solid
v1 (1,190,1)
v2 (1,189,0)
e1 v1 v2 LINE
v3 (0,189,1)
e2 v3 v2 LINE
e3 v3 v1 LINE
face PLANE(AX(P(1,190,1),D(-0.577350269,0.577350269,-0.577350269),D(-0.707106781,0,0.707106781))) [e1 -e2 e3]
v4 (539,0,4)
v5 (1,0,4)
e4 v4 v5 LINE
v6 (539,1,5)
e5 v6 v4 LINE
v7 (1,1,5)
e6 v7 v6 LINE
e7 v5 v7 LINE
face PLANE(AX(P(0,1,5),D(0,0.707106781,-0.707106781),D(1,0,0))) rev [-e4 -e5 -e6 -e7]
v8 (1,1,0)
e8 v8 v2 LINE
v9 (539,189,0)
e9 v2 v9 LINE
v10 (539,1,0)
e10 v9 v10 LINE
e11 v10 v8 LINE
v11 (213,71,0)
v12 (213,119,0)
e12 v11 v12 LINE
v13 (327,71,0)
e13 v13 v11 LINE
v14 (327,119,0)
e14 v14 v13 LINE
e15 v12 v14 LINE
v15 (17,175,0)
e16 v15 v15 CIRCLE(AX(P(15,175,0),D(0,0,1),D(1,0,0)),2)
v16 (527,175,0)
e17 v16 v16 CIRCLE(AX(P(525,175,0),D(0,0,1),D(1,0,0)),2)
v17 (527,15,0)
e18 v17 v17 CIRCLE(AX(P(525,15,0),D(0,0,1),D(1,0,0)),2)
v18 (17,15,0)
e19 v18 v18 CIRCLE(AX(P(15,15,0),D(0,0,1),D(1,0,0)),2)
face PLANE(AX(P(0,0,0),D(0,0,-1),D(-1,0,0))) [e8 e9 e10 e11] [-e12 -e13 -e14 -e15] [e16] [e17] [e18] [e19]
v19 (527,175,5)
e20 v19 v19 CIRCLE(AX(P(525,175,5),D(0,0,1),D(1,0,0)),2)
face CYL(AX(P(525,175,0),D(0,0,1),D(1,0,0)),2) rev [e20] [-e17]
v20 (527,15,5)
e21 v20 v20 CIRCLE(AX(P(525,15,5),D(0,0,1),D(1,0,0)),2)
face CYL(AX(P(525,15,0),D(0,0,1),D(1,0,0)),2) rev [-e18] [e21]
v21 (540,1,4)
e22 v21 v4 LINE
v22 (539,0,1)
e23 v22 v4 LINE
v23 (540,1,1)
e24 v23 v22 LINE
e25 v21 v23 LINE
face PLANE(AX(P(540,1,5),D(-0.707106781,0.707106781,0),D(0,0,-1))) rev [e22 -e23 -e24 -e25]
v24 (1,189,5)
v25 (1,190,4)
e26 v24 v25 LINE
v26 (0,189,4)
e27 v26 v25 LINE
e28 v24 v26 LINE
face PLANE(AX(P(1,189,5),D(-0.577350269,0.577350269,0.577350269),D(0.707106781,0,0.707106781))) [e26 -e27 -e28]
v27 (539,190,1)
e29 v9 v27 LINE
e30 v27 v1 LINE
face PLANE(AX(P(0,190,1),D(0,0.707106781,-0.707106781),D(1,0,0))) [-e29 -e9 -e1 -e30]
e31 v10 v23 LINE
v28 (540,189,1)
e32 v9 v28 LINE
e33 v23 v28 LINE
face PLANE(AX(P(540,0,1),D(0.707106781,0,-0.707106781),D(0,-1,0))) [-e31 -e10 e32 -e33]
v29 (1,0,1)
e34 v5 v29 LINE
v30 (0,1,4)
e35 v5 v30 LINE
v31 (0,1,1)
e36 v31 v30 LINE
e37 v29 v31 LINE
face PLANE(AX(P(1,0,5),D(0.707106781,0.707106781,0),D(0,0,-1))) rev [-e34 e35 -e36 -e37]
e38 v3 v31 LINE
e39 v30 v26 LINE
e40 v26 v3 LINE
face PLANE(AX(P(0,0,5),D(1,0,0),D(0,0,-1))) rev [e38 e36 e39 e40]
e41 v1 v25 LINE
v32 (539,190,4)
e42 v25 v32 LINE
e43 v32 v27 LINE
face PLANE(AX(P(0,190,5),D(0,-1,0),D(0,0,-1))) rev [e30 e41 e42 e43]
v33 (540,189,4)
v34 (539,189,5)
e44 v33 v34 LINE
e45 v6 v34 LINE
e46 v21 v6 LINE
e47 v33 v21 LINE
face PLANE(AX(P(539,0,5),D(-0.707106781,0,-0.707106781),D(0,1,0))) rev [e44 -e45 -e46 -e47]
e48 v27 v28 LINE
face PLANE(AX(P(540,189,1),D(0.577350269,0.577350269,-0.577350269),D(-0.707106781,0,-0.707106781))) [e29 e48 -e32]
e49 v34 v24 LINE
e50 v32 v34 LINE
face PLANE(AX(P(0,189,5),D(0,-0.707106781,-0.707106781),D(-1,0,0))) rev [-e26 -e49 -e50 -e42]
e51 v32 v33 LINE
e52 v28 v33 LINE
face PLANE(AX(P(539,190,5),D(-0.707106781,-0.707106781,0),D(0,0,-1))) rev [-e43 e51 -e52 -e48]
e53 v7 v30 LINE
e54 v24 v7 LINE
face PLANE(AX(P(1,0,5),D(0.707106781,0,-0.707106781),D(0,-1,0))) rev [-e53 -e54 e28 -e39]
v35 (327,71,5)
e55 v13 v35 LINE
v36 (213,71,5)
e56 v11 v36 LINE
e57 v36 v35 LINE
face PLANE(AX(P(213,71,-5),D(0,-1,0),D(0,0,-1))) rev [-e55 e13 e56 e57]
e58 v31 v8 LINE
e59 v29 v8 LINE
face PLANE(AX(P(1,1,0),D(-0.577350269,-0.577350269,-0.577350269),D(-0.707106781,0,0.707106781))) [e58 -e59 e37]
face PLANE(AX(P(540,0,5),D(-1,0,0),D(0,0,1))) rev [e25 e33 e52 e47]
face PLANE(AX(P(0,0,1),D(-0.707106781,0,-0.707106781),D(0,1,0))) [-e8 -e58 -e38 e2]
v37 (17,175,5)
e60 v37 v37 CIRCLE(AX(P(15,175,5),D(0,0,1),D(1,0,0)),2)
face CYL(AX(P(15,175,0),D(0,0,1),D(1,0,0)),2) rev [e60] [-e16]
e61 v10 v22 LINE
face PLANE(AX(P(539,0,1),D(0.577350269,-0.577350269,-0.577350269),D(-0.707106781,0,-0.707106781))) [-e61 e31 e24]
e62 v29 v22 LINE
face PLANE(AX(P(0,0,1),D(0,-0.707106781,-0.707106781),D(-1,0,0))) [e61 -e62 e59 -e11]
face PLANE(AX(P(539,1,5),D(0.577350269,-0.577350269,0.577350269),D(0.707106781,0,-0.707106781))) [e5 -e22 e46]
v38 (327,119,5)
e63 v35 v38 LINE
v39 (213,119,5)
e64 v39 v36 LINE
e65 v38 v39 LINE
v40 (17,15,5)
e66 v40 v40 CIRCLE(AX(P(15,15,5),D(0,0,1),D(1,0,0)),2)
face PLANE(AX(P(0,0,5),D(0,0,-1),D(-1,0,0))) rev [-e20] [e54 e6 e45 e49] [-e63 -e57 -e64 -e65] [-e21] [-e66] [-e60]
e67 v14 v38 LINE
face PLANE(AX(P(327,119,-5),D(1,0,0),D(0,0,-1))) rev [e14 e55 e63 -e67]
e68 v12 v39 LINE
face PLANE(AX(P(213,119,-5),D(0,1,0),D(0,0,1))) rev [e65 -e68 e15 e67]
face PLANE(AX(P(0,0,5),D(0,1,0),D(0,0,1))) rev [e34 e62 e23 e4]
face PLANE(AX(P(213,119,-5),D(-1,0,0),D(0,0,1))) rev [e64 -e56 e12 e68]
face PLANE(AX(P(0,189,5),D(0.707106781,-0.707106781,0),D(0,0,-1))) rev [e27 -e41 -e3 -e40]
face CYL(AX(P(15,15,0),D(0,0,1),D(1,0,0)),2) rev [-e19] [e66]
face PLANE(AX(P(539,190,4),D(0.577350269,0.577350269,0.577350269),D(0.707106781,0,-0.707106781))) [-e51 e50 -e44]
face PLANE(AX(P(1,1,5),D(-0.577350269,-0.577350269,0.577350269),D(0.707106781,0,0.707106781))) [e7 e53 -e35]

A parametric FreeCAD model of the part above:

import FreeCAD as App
import Part
import Sketcher


def add_polygon(sketch, points):
    """Adds a closed chain of lines whose ends are joined by coincident constraints."""
    first, n = sketch.GeometryCount, len(points)
    for a, b in zip(points, points[1:] + points[:1]):
        sketch.addGeometry(Part.LineSegment(App.Vector(*a, 0), App.Vector(*b, 0)), False)
    for i in range(n):
        sketch.addConstraint(Sketcher.Constraint("Coincident", first + i, 2, first + (i + 1) % n, 1))

doc = App.newDocument("Part")
body = doc.addObject("PartDesign::Body", "Body")

# Sketch on XY plane
sketch1 = body.newObject("Sketcher::SketchObject", "Sketch")
sketch1.AttachmentSupport = (doc.getObject("XY_Plane"), [""])
sketch1.MapMode = "FlatFace"
add_polygon(sketch1, [(0, 190), (0, 0), (540, 0), (540, 190)])  # lines 0-3
sketch1.addConstraint(Sketcher.Constraint("Vertical", 0))
sketch1.addConstraint(Sketcher.Constraint("Horizontal", 1))
sketch1.addConstraint(Sketcher.Constraint("Vertical", 2))
sketch1.addConstraint(Sketcher.Constraint("Horizontal", 3))
sketch1.addConstraint(Sketcher.Constraint("Coincident", 0, 2, -1, 1))
sketch1.addConstraint(Sketcher.Constraint("DistanceX", 1, 1, 1, 2, 540.0))
sketch1.addConstraint(Sketcher.Constraint("DistanceY", 0, 2, 0, 1, 190.0))
pad1 = body.newObject("PartDesign::Pad", "Pad")
pad1.Profile = sketch1
pad1.Length = 5
doc.recompute()

chamfer = body.newObject("PartDesign::Chamfer", "Chamfer")
chamfer.Base = (pad1, ["Edge1"])
chamfer.UseAllEdges = True
chamfer.Size = 1

# Sketch on XY plane
sketch2 = body.newObject("Sketcher::SketchObject", "Sketch001")
sketch2.AttachmentSupport = (doc.getObject("XY_Plane"), [""])
sketch2.MapMode = "FlatFace"
sketch2.AttachmentOffset = App.Placement(App.Vector(0, 0, 5), App.Rotation())
sketch2.addGeometry(Part.Circle(App.Vector(525, 175, 0), App.Vector(0, 0, 1), 2), False)
sketch2.addGeometry(Part.Circle(App.Vector(525, 15, 0), App.Vector(0, 0, 1), 2), False)
sketch2.addGeometry(Part.Circle(App.Vector(15, 175, 0), App.Vector(0, 0, 1), 2), False)
sketch2.addGeometry(Part.Circle(App.Vector(15, 15, 0), App.Vector(0, 0, 1), 2), False)
sketch2.addConstraint(Sketcher.Constraint("Equal", 0, 1))
sketch2.addConstraint(Sketcher.Constraint("Equal", 1, 2))
sketch2.addConstraint(Sketcher.Constraint("Equal", 2, 3))
sketch2.addConstraint(Sketcher.Constraint("Horizontal", 0, 3, 2, 3))
sketch2.addConstraint(Sketcher.Constraint("Horizontal", 1, 3, 3, 3))
sketch2.addConstraint(Sketcher.Constraint("Vertical", 0, 3, 1, 3))
sketch2.addConstraint(Sketcher.Constraint("Vertical", 2, 3, 3, 3))
sketch2.addConstraint(Sketcher.Constraint("Diameter", 0, 4.0))
sketch2.addConstraint(Sketcher.Constraint("DistanceX", -1, 1, 0, 3, 525.0))
sketch2.addConstraint(Sketcher.Constraint("DistanceY", -1, 1, 0, 3, 175.0))
sketch2.addConstraint(Sketcher.Constraint("DistanceY", -1, 1, 1, 3, 15.0))
sketch2.addConstraint(Sketcher.Constraint("DistanceX", -1, 1, 2, 3, 15.0))
pocket1 = body.newObject("PartDesign::Pocket", "Pocket")
pocket1.Profile = sketch2
pocket1.Length = 5

# Sketch on XY plane
sketch3 = body.newObject("Sketcher::SketchObject", "Sketch002")
sketch3.AttachmentSupport = (doc.getObject("XY_Plane"), [""])
sketch3.MapMode = "FlatFace"
sketch3.AttachmentOffset = App.Placement(App.Vector(0, 0, 5), App.Rotation())
add_polygon(sketch3, [(213, 119), (213, 71), (327, 71), (327, 119)])  # lines 0-3
sketch3.addConstraint(Sketcher.Constraint("Vertical", 0))
sketch3.addConstraint(Sketcher.Constraint("Horizontal", 1))
sketch3.addConstraint(Sketcher.Constraint("Vertical", 2))
sketch3.addConstraint(Sketcher.Constraint("Horizontal", 3))
sketch3.addConstraint(Sketcher.Constraint("DistanceX", 1, 1, 1, 2, 114.0))
sketch3.addConstraint(Sketcher.Constraint("DistanceY", 0, 2, 0, 1, 48.0))
sketch3.addConstraint(Sketcher.Constraint("DistanceX", -1, 1, 0, 2, 213.0))
sketch3.addConstraint(Sketcher.Constraint("DistanceY", -1, 1, 0, 2, 71.0))
pocket2 = body.newObject("PartDesign::Pocket", "Pocket001")
pocket2.Profile = sketch3
pocket2.Length = 10

doc.recompute()
